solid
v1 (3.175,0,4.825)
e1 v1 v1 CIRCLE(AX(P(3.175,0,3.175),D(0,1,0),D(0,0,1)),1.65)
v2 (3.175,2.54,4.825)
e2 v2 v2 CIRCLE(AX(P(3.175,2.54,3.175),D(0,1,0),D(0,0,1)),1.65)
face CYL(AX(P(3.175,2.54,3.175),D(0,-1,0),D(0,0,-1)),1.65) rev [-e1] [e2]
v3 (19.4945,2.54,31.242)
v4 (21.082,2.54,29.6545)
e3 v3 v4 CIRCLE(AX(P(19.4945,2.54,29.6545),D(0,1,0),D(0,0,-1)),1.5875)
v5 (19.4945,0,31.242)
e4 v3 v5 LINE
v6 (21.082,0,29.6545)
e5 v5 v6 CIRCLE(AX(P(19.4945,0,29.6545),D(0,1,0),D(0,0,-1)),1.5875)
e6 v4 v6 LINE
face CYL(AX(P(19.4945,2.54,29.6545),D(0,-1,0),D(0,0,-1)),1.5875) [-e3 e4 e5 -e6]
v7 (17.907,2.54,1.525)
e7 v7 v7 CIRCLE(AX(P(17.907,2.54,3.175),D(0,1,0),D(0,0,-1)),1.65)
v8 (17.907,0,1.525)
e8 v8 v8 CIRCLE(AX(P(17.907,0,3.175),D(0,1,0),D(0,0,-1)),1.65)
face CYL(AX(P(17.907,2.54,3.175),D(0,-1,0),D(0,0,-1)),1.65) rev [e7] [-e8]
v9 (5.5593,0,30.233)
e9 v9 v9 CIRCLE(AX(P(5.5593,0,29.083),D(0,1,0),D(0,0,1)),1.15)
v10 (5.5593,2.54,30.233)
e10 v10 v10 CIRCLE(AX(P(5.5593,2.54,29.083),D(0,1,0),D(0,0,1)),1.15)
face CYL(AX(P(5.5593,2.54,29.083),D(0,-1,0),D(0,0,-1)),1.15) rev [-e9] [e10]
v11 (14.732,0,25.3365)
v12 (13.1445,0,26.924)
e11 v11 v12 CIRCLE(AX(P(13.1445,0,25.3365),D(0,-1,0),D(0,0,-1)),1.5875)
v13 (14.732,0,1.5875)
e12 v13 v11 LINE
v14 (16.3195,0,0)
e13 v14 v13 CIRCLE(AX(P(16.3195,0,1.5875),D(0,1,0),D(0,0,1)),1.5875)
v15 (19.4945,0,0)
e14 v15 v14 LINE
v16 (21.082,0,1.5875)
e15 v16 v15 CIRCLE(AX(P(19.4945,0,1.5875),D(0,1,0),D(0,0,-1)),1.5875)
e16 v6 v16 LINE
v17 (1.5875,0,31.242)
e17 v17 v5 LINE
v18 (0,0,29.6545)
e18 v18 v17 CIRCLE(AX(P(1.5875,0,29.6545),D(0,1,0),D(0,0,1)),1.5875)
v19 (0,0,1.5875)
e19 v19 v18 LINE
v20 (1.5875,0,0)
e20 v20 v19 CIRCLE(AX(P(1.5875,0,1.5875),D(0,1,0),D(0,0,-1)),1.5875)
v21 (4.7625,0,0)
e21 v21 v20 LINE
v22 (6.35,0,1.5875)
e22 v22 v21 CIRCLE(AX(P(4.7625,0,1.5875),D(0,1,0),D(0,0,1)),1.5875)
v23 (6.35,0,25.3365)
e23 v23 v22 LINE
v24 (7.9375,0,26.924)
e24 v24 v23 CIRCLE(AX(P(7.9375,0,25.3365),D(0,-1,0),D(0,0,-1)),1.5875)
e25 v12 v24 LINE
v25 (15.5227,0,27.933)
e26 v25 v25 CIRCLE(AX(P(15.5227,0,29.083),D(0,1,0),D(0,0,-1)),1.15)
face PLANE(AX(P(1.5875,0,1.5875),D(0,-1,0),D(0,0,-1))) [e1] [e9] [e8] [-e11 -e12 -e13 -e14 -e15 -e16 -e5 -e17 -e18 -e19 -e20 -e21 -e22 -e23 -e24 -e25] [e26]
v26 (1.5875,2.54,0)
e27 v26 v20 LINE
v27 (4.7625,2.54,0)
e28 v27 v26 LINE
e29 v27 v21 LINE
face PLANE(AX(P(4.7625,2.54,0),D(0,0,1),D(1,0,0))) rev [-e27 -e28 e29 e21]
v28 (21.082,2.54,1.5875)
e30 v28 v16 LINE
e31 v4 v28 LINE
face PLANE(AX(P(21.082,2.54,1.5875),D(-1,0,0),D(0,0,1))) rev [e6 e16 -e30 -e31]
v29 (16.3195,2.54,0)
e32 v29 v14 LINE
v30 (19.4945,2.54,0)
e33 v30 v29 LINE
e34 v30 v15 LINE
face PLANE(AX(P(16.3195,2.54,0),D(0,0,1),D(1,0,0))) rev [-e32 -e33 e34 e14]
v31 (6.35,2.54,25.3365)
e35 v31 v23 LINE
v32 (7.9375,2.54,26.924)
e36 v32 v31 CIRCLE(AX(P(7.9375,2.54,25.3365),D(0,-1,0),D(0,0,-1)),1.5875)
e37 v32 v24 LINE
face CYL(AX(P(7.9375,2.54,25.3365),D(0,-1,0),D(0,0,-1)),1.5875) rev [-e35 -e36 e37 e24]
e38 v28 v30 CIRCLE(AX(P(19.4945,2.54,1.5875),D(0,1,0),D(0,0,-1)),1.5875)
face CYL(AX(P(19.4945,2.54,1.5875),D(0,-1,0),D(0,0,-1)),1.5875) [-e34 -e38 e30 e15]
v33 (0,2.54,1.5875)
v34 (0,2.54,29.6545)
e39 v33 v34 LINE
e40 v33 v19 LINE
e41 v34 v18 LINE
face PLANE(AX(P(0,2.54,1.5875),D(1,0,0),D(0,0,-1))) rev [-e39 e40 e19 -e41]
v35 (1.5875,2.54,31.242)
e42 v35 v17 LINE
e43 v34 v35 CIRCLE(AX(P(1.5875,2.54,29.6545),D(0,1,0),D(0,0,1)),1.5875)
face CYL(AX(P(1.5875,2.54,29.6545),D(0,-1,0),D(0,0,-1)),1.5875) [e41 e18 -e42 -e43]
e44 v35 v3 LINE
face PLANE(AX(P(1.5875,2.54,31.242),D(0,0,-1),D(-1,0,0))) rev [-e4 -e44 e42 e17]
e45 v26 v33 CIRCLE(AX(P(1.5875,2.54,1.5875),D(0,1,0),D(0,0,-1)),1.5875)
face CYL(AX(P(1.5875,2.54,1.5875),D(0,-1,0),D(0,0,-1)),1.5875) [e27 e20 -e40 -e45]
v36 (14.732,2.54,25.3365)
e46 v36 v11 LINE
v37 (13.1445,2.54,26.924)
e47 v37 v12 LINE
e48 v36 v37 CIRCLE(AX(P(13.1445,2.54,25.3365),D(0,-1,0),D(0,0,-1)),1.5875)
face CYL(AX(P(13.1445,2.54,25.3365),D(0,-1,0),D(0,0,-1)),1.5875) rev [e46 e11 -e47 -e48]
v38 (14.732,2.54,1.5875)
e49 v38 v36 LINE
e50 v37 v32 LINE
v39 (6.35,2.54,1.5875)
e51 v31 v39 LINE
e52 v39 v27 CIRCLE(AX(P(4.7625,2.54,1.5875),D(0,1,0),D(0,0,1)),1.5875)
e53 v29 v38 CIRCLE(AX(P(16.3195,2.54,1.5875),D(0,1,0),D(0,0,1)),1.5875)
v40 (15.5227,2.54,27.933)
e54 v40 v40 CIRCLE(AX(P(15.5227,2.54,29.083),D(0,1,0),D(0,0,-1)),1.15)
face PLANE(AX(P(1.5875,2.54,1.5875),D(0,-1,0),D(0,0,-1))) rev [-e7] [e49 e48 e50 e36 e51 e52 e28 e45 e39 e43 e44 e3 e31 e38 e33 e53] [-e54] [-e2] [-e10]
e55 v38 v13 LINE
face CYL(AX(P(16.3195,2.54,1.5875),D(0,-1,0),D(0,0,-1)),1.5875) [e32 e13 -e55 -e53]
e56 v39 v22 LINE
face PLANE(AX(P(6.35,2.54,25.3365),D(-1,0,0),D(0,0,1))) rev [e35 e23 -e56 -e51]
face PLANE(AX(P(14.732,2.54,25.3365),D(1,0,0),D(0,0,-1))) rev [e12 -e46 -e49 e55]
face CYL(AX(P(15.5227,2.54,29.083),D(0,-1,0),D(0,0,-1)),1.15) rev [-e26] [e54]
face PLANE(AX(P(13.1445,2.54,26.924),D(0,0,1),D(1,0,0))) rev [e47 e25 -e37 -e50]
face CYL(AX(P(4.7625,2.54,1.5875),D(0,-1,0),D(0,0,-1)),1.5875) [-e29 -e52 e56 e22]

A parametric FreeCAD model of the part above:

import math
import FreeCAD as App
import Part
import Sketcher
from FreeCAD import Vector
Q = App.Units.Quantity

doc = App.newDocument("Part")
body = doc.addObject("PartDesign::Body", "Body")

# Sketch on XZ plane
sketch1 = doc.addObject("Sketcher::SketchObject", "Sketch")
body.addObject(sketch1)
sketch1.AttachmentSupport = (doc.XZ_Plane, [""])
sketch1.MapMode = "FlatFace"
sketch1.addGeometry([
    Part.LineSegment(Vector(0, 1.6, 0), Vector(0, 29.7, 0)),  # 0
    Part.ArcOfCircle(Part.Circle(Vector(1.6, 29.7, 0), Vector(0, 0, 1), 1.6), math.radians(90), math.radians(180)),  # 1
    Part.LineSegment(Vector(1.6, 31.2, 0), Vector(19.5, 31.2, 0)),  # 2
    Part.ArcOfCircle(Part.Circle(Vector(19.5, 29.7, 0), Vector(0, 0, 1), 1.6), math.radians(0), math.radians(90)),  # 3
    Part.LineSegment(Vector(21.1, 29.7, 0), Vector(21.1, 1.6, 0)),  # 4
    Part.ArcOfCircle(Part.Circle(Vector(19.5, 1.6, 0), Vector(0, 0, 1), 1.6), math.radians(-90), math.radians(0)),  # 5
    Part.LineSegment(Vector(19.5, 0, 0), Vector(16.3, 0, 0)),  # 6
    Part.ArcOfCircle(Part.Circle(Vector(16.3, 1.6, 0), Vector(0, 0, 1), 1.6), math.radians(180), math.radians(270)),  # 7
    Part.LineSegment(Vector(14.7, 1.6, 0), Vector(14.7, 25.3, 0)),  # 8
    Part.ArcOfCircle(Part.Circle(Vector(13.1, 25.3, 0), Vector(0, 0, 1), 1.6), math.radians(0), math.radians(90)),  # 9
    Part.LineSegment(Vector(13.1, 26.9, 0), Vector(7.9, 26.9, 0)),  # 10
    Part.ArcOfCircle(Part.Circle(Vector(7.9, 25.3, 0), Vector(0, 0, 1), 1.6), math.radians(90), math.radians(180)),  # 11
    Part.LineSegment(Vector(6.3, 25.3, 0), Vector(6.3, 1.6, 0)),  # 12
    Part.ArcOfCircle(Part.Circle(Vector(4.8, 1.6, 0), Vector(0, 0, 1), 1.6), math.radians(-90), math.radians(0)),  # 13
    Part.LineSegment(Vector(4.8, 0, 0), Vector(1.6, 0, 0)),  # 14
    Part.ArcOfCircle(Part.Circle(Vector(1.6, 1.6, 0), Vector(0, 0, 1), 1.6), math.radians(180), math.radians(270)),  # 15
    Part.Circle(Vector(5.6, 29.1, 0), Vector(0, 0, 1), 1.1),  # 16
    Part.Circle(Vector(15.5, 29.1, 0), Vector(0, 0, 1), 1.1),  # 17
    Part.Circle(Vector(3.2, 3.2, 0), Vector(0, 0, 1), 1.6),  # 18
    Part.Circle(Vector(17.9, 3.2, 0), Vector(0, 0, 1), 1.6),  # 19
], False)
sketch1.addConstraint([
    Sketcher.Constraint("Tangent", 0, 2, 1, 2),
    Sketcher.Constraint("Tangent", 1, 1, 2, 1),
    Sketcher.Constraint("Tangent", 2, 2, 3, 2),
    Sketcher.Constraint("Tangent", 3, 1, 4, 1),
    Sketcher.Constraint("Tangent", 4, 2, 5, 2),
    Sketcher.Constraint("Tangent", 5, 1, 6, 1),
    Sketcher.Constraint("Tangent", 6, 2, 7, 2),
    Sketcher.Constraint("Tangent", 7, 1, 8, 1),
    Sketcher.Constraint("Tangent", 8, 2, 9, 1),
    Sketcher.Constraint("Tangent", 9, 2, 10, 1),
    Sketcher.Constraint("Tangent", 10, 2, 11, 1),
    Sketcher.Constraint("Tangent", 11, 2, 12, 1),
    Sketcher.Constraint("Tangent", 12, 2, 13, 2),
    Sketcher.Constraint("Tangent", 13, 1, 14, 1),
    Sketcher.Constraint("Tangent", 14, 2, 15, 2),
    Sketcher.Constraint("Tangent", 15, 1, 0, 1),
    Sketcher.Constraint("Vertical", 0),
    Sketcher.Constraint("Horizontal", 2),
    Sketcher.Constraint("Vertical", 4),
    Sketcher.Constraint("Horizontal", 6),
    Sketcher.Constraint("Vertical", 8),
    Sketcher.Constraint("Horizontal", 10),
    Sketcher.Constraint("Vertical", 12),
    Sketcher.Constraint("Horizontal", 14),
    Sketcher.Constraint("Equal", 1, 3),
    Sketcher.Constraint("Equal", 3, 5),
    Sketcher.Constraint("Equal", 5, 7),
    Sketcher.Constraint("Equal", 7, 9),
    Sketcher.Constraint("Equal", 9, 11),
    Sketcher.Constraint("Equal", 11, 13),
    Sketcher.Constraint("Equal", 13, 15),
    Sketcher.Constraint("Equal", 16, 17),
    Sketcher.Constraint("Equal", 18, 19),
    Sketcher.Constraint("PointOnObject", 0, 2, -2),
    Sketcher.Constraint("PointOnObject", 5, 1, -1),
    Sketcher.Constraint("PointOnObject", 13, 1, -1),
    Sketcher.Constraint("Horizontal", 16, 3, 17, 3),
    Sketcher.Constraint("Horizontal", 18, 3, 19, 3),
    Sketcher.Constraint("Equal", 6, 14),
    Sketcher.Constraint("Radius", 1, Q("0.0625 in")),
    Sketcher.Constraint("Diameter", 16, 2.3),
    Sketcher.Constraint("Diameter", 18, 3.3),
    Sketcher.Constraint("DistanceX", 2, 1, 2, 2, Q("0.705 in")),
    Sketcher.Constraint("DistanceX", 6, 2, 6, 1, Q("0.125 in")),
    Sketcher.Constraint("DistanceY", 0, 1, 0, 2, Q("1.105 in")),
    Sketcher.Constraint("DistanceY", 8, 1, 8, 2, Q("0.935 in")),
    Sketcher.Constraint("DistanceX", 18, 3, 19, 3, Q("0.58 in")),
    Sketcher.Constraint("DistanceY", -1, 1, 16, 3, Q("1.145 in")),
    Sketcher.Constraint("DistanceX", -1, 1, 18, 3, Q("0.125 in")),
    Sketcher.Constraint("DistanceY", -1, 1, 18, 3, Q("0.125 in")),
    Sketcher.Constraint("DistanceX", -1, 1, 16, 3, 5.5593),
    Sketcher.Constraint("DistanceX", -1, 1, 17, 3, 15.5227),
])
pad1 = doc.addObject("PartDesign::Pad", "Pad")
body.addObject(pad1)
pad1.Profile = sketch1
pad1.Length = Q("0.1 in")
pad1.Reversed = True

doc.recompute()
